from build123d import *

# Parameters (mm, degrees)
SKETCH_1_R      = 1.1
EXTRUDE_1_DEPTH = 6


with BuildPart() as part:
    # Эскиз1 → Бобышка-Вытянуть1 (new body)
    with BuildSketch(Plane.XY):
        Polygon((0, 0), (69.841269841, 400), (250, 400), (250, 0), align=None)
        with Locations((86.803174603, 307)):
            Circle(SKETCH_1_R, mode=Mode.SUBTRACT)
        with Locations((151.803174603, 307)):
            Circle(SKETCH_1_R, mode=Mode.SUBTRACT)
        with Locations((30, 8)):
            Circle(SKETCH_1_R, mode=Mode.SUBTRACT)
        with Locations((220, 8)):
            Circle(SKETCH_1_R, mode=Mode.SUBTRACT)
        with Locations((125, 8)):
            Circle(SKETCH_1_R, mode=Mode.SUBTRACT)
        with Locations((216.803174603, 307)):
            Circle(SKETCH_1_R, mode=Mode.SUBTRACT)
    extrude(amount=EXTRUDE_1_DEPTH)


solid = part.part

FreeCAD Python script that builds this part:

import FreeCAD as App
import Part
import Sketcher

V = App.Vector
Q = App.Units.Quantity

doc = App.newDocument("Part")
body = doc.addObject("PartDesign::Body", "Body")

sketch1 = body.newObject("Sketcher::SketchObject", "Sketch")
sketch1.AttachmentSupport = (doc.getObject("XY_Plane"), [""])
sketch1.MapMode = "FlatFace"
sketch1.addGeometry(Part.LineSegment(V(69.8, 400, 0), V(0, 0, 0)), False)
sketch1.addGeometry(Part.LineSegment(V(0, 0, 0), V(250, 0, 0)), False)
sketch1.addGeometry(Part.LineSegment(V(250, 0, 0), V(250, 400, 0)), False)
sketch1.addGeometry(Part.LineSegment(V(250, 400, 0), V(69.8, 400, 0)), False)
sketch1.addGeometry(Part.Circle(V(220, 8, 0), V(0, 0, 1), 1.1), False)
sketch1.addGeometry(Part.Circle(V(125, 8, 0), V(0, 0, 1), 1.1), False)
sketch1.addGeometry(Part.Circle(V(30, 8, 0), V(0, 0, 1), 1.1), False)
sketch1.addGeometry(Part.Circle(V(216.8, 307, 0), V(0, 0, 1), 1.1), False)
sketch1.addGeometry(Part.Circle(V(151.8, 307, 0), V(0, 0, 1), 1.1), False)
sketch1.addGeometry(Part.Circle(V(86.8, 307, 0), V(0, 0, 1), 1.1), False)
sketch1.addConstraint(Sketcher.Constraint("Coincident", 0, 2, 1, 1))
sketch1.addConstraint(Sketcher.Constraint("Coincident", 1, 2, 2, 1))
sketch1.addConstraint(Sketcher.Constraint("Coincident", 2, 2, 3, 1))
sketch1.addConstraint(Sketcher.Constraint("Coincident", 3, 2, 0, 1))
sketch1.addConstraint(Sketcher.Constraint("Horizontal", 1))
sketch1.addConstraint(Sketcher.Constraint("Vertical", 2))
sketch1.addConstraint(Sketcher.Constraint("Horizontal", 3))
sketch1.addConstraint(Sketcher.Constraint("Coincident", 0, 2, -1, 1))
sketch1.addConstraint(Sketcher.Constraint("Equal", 4, 5))
sketch1.addConstraint(Sketcher.Constraint("Equal", 5, 6))
sketch1.addConstraint(Sketcher.Constraint("Equal", 6, 7))
sketch1.addConstraint(Sketcher.Constraint("Equal", 7, 8))
sketch1.addConstraint(Sketcher.Constraint("Equal", 8, 9))
sketch1.addConstraint(Sketcher.Constraint("Horizontal", 4, 3, 5, 3))
sketch1.addConstraint(Sketcher.Constraint("Horizontal", 5, 3, 6, 3))
sketch1.addConstraint(Sketcher.Constraint("Horizontal", 7, 3, 8, 3))
sketch1.addConstraint(Sketcher.Constraint("Horizontal", 8, 3, 9, 3))
sketch1.addConstraint(Sketcher.Constraint("Diameter", 4, Q("2.2 mm")))
sketch1.addConstraint(Sketcher.Constraint("DistanceX", 1, 1, 1, 2, Q("250 mm")))
sketch1.addConstraint(Sketcher.Constraint("DistanceY", 2, 1, 2, 2, Q("400 mm")))
sketch1.addConstraint(Sketcher.Constraint("DistanceX", -1, 1, 4, 3, Q("220 mm")))
sketch1.addConstraint(Sketcher.Constraint("DistanceY", -1, 1, 4, 3, Q("8 mm")))
sketch1.addConstraint(Sketcher.Constraint("DistanceX", -1, 1, 5, 3, Q("125 mm")))
sketch1.addConstraint(Sketcher.Constraint("DistanceX", -1, 1, 6, 3, Q("30 mm")))
sketch1.addConstraint(Sketcher.Constraint("DistanceY", -1, 1, 7, 3, Q("307 mm")))
sketch1.addConstraint(Sketcher.Constraint("DistanceX", 8, 3, 7, 3, Q("65 mm")))
sketch1.addConstraint(Sketcher.Constraint("DistanceX", 9, 3, 8, 3, Q("65 mm")))
sketch1.addConstraint(Sketcher.Constraint("DistanceX", 3, 2, 3, 1, Q("180.15873 mm")))
sketch1.addConstraint(Sketcher.Constraint("DistanceX", -1, 1, 7, 3, Q("216.803175 mm")))
pad1 = body.newObject("PartDesign::Pad", "Pad")
pad1.Profile = sketch1
pad1.Length = 6

doc.recompute()
